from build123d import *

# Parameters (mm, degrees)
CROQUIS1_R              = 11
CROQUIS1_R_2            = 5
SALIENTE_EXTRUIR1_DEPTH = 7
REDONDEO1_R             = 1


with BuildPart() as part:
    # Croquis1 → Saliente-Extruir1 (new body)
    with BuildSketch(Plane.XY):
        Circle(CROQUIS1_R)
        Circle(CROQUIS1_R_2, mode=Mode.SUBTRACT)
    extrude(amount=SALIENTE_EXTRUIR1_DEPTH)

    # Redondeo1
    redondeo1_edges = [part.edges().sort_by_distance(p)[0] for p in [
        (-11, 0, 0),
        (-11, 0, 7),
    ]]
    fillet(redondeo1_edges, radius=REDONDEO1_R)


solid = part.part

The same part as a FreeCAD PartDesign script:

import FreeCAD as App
import Part
import Sketcher
from FreeCAD import Vector
Q = App.Units.Quantity


def edges_at(feature, points):
    """Names of the edges that pass closest to the given points."""
    edges = feature.Shape.Edges
    near = lambda p: min(range(len(edges)), key=lambda i: edges[i].distToShape(Part.Vertex(*p))[0])
    return sorted({f"Edge{near(p) + 1}" for p in points})

doc = App.newDocument("Part")
body = doc.addObject("PartDesign::Body", "Body")

# Sketch on XY plane
sketch1 = body.newObject("Sketcher::SketchObject", "Sketch")
sketch1.AttachmentSupport = (doc.getObject("XY_Plane"), [""])
sketch1.MapMode = "FlatFace"
sketch1.addGeometry(Part.Circle(Vector(0, 0, 0), Vector(0, 0, 1), 11), False)
sketch1.addGeometry(Part.Circle(Vector(0, 0, 0), Vector(0, 0, 1), 5), False)
sketch1.addConstraint(Sketcher.Constraint("Coincident", 0, 3, -1, 1))
sketch1.addConstraint(Sketcher.Constraint("Coincident", 1, 3, -1, 1))
sketch1.addConstraint(Sketcher.Constraint("Diameter", 0, Q("22 mm")))
sketch1.addConstraint(Sketcher.Constraint("Diameter", 1, Q("10 mm")))
pad1 = body.newObject("PartDesign::Pad", "Pad")
pad1.Profile = sketch1
pad1.Length = 7
doc.recompute()

fillet = body.newObject("PartDesign::Fillet", "Fillet")
fillet.Base = (pad1, edges_at(pad1, [(-11, 0, 0), (-11, 0, 7)]))
fillet.Radius = 1

doc.recompute()
